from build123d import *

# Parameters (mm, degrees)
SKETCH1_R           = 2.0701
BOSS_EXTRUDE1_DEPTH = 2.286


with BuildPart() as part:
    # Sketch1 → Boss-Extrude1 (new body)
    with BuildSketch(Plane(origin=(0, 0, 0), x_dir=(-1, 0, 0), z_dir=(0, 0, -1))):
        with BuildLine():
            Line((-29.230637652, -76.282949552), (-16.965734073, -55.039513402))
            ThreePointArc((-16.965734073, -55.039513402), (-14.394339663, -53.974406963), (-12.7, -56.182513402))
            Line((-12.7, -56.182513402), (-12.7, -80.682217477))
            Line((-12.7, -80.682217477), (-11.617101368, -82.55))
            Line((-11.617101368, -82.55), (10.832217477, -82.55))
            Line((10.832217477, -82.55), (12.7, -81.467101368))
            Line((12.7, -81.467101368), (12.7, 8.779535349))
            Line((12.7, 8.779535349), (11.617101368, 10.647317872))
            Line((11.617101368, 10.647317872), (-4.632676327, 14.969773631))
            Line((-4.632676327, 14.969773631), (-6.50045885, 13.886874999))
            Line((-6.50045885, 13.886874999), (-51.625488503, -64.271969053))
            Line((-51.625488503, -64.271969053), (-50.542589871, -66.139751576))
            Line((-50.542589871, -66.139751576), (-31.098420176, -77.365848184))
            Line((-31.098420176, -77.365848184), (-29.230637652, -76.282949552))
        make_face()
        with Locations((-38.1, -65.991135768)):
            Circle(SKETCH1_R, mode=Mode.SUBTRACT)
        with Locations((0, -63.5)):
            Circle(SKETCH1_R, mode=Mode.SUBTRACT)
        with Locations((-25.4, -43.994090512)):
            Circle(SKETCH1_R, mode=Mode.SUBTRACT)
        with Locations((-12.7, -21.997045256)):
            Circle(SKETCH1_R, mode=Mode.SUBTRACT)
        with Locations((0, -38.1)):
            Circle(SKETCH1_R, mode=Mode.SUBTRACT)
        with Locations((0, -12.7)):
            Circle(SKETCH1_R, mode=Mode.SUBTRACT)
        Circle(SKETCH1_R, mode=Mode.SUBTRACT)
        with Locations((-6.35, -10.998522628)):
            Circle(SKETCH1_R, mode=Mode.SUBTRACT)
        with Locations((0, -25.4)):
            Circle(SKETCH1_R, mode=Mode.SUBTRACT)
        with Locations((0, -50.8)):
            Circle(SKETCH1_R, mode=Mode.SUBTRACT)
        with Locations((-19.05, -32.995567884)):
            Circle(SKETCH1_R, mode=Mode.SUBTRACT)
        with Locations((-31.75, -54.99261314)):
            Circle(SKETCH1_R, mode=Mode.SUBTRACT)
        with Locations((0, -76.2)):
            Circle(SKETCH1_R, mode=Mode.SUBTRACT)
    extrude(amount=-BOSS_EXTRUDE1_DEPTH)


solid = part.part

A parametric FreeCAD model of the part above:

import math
import FreeCAD as App
import Part
import Sketcher
Q = App.Units.Quantity

doc = App.newDocument("Part")
body = doc.addObject("PartDesign::Body", "Body")

# Sketch on XY plane
sketch1 = body.newObject("Sketcher::SketchObject", "Sketch")
sketch1.AttachmentSupport = (doc.getObject("XY_Plane"), [""])
sketch1.MapMode = "FlatFace"
sketch1.addGeometry([
    Part.LineSegment(App.Vector(29.2, -76.3, 0), App.Vector(17, -55, 0)),  # 0
    Part.ArcOfCircle(Part.Circle(App.Vector(15, -56.2, 0), App.Vector(0, 0, 1), 2.3), math.radians(30), math.radians(180)),  # 1
    Part.LineSegment(App.Vector(12.7, -56.2, 0), App.Vector(12.7, -80.7, 0)),  # 2
    Part.LineSegment(App.Vector(12.7, -80.7, 0), App.Vector(11.6, -82.5, 0)),  # 3
    Part.LineSegment(App.Vector(11.6, -82.5, 0), App.Vector(-10.8, -82.5, 0)),  # 4
    Part.LineSegment(App.Vector(-10.8, -82.5, 0), App.Vector(-12.7, -81.5, 0)),  # 5
    Part.LineSegment(App.Vector(-12.7, -81.5, 0), App.Vector(-12.7, 8.8, 0)),  # 6
    Part.LineSegment(App.Vector(-12.7, 8.8, 0), App.Vector(-11.6, 10.6, 0)),  # 7
    Part.LineSegment(App.Vector(-11.6, 10.6, 0), App.Vector(4.6, 15, 0)),  # 8
    Part.LineSegment(App.Vector(4.6, 15, 0), App.Vector(6.5, 13.9, 0)),  # 9
    Part.LineSegment(App.Vector(6.5, 13.9, 0), App.Vector(51.6, -64.3, 0)),  # 10
    Part.LineSegment(App.Vector(51.6, -64.3, 0), App.Vector(50.5, -66.1, 0)),  # 11
    Part.LineSegment(App.Vector(50.5, -66.1, 0), App.Vector(31.1, -77.4, 0)),  # 12
    Part.LineSegment(App.Vector(31.1, -77.4, 0), App.Vector(29.2, -76.3, 0)),  # 13
    Part.Circle(App.Vector(38.1, -66, 0), App.Vector(0, 0, 1), 2.1),  # 14
    Part.Circle(App.Vector(31.8, -55, 0), App.Vector(0, 0, 1), 2.1),  # 15
    Part.Circle(App.Vector(25.4, -44, 0), App.Vector(0, 0, 1), 2.1),  # 16
    Part.Circle(App.Vector(0, -76.2, 0), App.Vector(0, 0, 1), 2.1),  # 17
    Part.Circle(App.Vector(0, -63.5, 0), App.Vector(0, 0, 1), 2.1),  # 18
    Part.Circle(App.Vector(0, -50.8, 0), App.Vector(0, 0, 1), 2.1),  # 19
    Part.Circle(App.Vector(19.1, -33, 0), App.Vector(0, 0, 1), 2.1),  # 20
    Part.Circle(App.Vector(12.7, -22, 0), App.Vector(0, 0, 1), 2.1),  # 21
    Part.Circle(App.Vector(0, -38.1, 0), App.Vector(0, 0, 1), 2.1),  # 22
    Part.Circle(App.Vector(0, -25.4, 0), App.Vector(0, 0, 1), 2.1),  # 23
    Part.Circle(App.Vector(6.3, -11, 0), App.Vector(0, 0, 1), 2.1),  # 24
    Part.Circle(App.Vector(0, -12.7, 0), App.Vector(0, 0, 1), 2.1),  # 25
    Part.Circle(App.Vector(0, 0, 0), App.Vector(0, 0, 1), 2.1),  # 26
], False)
sketch1.addConstraint([
    Sketcher.Constraint("Tangent", 0, 2, 1, 1),
    Sketcher.Constraint("Tangent", 1, 2, 2, 1),
    Sketcher.Constraint("Coincident", 2, 2, 3, 1),
    Sketcher.Constraint("Coincident", 3, 2, 4, 1),
    Sketcher.Constraint("Coincident", 4, 2, 5, 1),
    Sketcher.Constraint("Coincident", 5, 2, 6, 1),
    Sketcher.Constraint("Coincident", 6, 2, 7, 1),
    Sketcher.Constraint("Coincident", 7, 2, 8, 1),
    Sketcher.Constraint("Coincident", 8, 2, 9, 1),
    Sketcher.Constraint("Coincident", 9, 2, 10, 1),
    Sketcher.Constraint("Coincident", 10, 2, 11, 1),
    Sketcher.Constraint("Coincident", 11, 2, 12, 1),
    Sketcher.Constraint("Coincident", 12, 2, 13, 1),
    Sketcher.Constraint("Coincident", 13, 2, 0, 1),
    Sketcher.Constraint("Vertical", 2),
    Sketcher.Constraint("Horizontal", 4),
    Sketcher.Constraint("Vertical", 6),
    Sketcher.Constraint("Coincident", 26, 3, -1, 1),
    Sketcher.Constraint("Equal", 14, 15),
    Sketcher.Constraint("Equal", 15, 16),
    Sketcher.Constraint("Equal", 16, 17),
    Sketcher.Constraint("Equal", 17, 18),
    Sketcher.Constraint("Equal", 18, 19),
    Sketcher.Constraint("Equal", 19, 20),
    Sketcher.Constraint("Equal", 20, 21),
    Sketcher.Constraint("Equal", 21, 22),
    Sketcher.Constraint("Equal", 22, 23),
    Sketcher.Constraint("Equal", 23, 24),
    Sketcher.Constraint("Equal", 24, 25),
    Sketcher.Constraint("Equal", 25, 26),
    Sketcher.Constraint("PointOnObject", 17, 3, -2),
    Sketcher.Constraint("PointOnObject", 18, 3, -2),
    Sketcher.Constraint("PointOnObject", 19, 3, -2),
    Sketcher.Constraint("PointOnObject", 22, 3, -2),
    Sketcher.Constraint("PointOnObject", 23, 3, -2),
    Sketcher.Constraint("PointOnObject", 25, 3, -2),
    Sketcher.Constraint("Perpendicular", 3, 5),
    Sketcher.Constraint("Perpendicular", 5, 7),
    Sketcher.Constraint("Perpendicular", 7, 9),
    Sketcher.Constraint("Parallel", 0, 10),
    Sketcher.Constraint("Perpendicular", 9, 11),
    Sketcher.Constraint("Perpendicular", 10, 12),
    Sketcher.Constraint("Perpendicular", 11, 13),
    Sketcher.Constraint("Vertical", 21, 3, 1, 2),
    Sketcher.Constraint("Equal", 3, 5),
    Sketcher.Constraint("Equal", 5, 7),
    Sketcher.Constraint("Equal", 7, 9),
    Sketcher.Constraint("Equal", 9, 11),
    Sketcher.Constraint("Equal", 11, 13),
    Sketcher.Constraint("Radius", 1, Q("0.09 in")),
    Sketcher.Constraint("Diameter", 14, Q("0.163 in")),
    Sketcher.Constraint("DistanceX", -1, 1, 16, 3, Q("1 in")),
    Sketcher.Constraint("DistanceY", 17, 3, -1, 1, Q("3 in")),
    Sketcher.Constraint("DistanceY", 19, 3, -1, 1, Q("2 in")),
    Sketcher.Constraint("DistanceY", 23, 3, -1, 1, Q("1 in")),
    Sketcher.Constraint("Angle", 0, Q("120 deg")),
    Sketcher.Constraint("DistanceY", 18, 3, 22, 3, Q("1 in")),
    Sketcher.Constraint("DistanceY", 22, 3, 25, 3, Q("1 in")),
    Sketcher.Constraint("DistanceX", 5, 2, 2, 2, Q("1 in")),
    Sketcher.Constraint("DistanceX", -1, 1, 14, 3, Q("1.5 in")),
    Sketcher.Constraint("DistanceY", 18, 3, -1, 1, Q("2.5 in")),
    Sketcher.Constraint("DistanceX", -1, 1, 21, 3, Q("0.5 in")),
    Sketcher.Constraint("DistanceX", 20, 3, 15, 3, Q("0.5 in")),
    Sketcher.Constraint("DistanceX", 24, 3, 20, 3, Q("0.5 in")),
    Sketcher.Constraint("DistanceX", -1, 1, 15, 3, Q("1.25 in")),
    Sketcher.Constraint("DistanceY", 3, 2, -1, 1, Q("3.25 in")),
    Sketcher.Constraint("Distance", 3, Q("0.085 in")),
    Sketcher.Constraint("DistanceX", 4, 2, 4, 1, Q("22.449319 mm")),
    Sketcher.Constraint("DistanceY", 1, 3, 15, 3, Q("1.1899 mm")),
    Sketcher.Constraint("Distance", 8, Q("16.814842 mm")),
    Sketcher.Constraint("Distance", 10, Q("90.250059 mm")),
    Sketcher.Constraint("DistanceY", 2, 2, 2, 1, Q("24.499704 mm")),
    Sketcher.Constraint("DistanceY", 6, 1, 6, 2, Q("90.246637 mm")),
    Sketcher.Constraint("DistanceY", 16, 3, -1, 1, Q("43.994091 mm")),
    Sketcher.Constraint("DistanceX", -1, 1, 9, 2, Q("6.500459 mm")),
    Sketcher.Constraint("DistanceY", 1, 3, 21, 3, Q("34.185468 mm")),
    Sketcher.Constraint("DistanceY", 24, 3, 7, 2, Q("21.64584 mm")),
    Sketcher.Constraint("DistanceY", 14, 3, -1, 1, Q("65.991136 mm")),
    Sketcher.Constraint("DistanceY", 20, 3, -1, 1, Q("32.995568 mm")),
])
pad1 = body.newObject("PartDesign::Pad", "Pad")
pad1.Profile = sketch1
pad1.Length = Q("0.09 in")

doc.recompute()
